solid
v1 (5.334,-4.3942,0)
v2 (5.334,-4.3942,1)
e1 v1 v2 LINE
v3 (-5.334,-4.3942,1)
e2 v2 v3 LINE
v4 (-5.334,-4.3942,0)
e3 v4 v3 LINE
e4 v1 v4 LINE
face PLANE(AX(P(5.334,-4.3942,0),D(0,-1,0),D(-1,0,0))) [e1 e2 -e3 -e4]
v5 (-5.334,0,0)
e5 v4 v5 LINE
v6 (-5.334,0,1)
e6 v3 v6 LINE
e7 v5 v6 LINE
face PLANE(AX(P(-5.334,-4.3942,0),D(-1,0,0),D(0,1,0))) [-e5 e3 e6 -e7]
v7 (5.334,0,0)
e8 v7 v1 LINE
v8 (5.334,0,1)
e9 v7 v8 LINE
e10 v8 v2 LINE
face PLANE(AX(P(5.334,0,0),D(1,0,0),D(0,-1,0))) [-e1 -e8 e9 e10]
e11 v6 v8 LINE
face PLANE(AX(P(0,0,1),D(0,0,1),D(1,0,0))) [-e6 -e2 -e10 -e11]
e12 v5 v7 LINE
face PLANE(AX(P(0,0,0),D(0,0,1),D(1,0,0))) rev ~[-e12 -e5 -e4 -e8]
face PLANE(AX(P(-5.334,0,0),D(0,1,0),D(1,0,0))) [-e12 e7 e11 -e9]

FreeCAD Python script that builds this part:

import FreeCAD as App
import Part
import Sketcher

V = App.Vector
Q = App.Units.Quantity

doc = App.newDocument("Part")
body = doc.addObject("PartDesign::Body", "Body")

sketch1 = body.newObject("Sketcher::SketchObject", "Sketch")
sketch1.AttachmentSupport = (doc.getObject("XY_Plane"), [""])
sketch1.MapMode = "FlatFace"
sketch1.addGeometry([
    Part.LineSegment(V(5.3, 0, 0), V(-5.3, 0, 0)),
    Part.LineSegment(V(-5.3, 0, 0), V(-5.3, -4.4, 0)),
    Part.LineSegment(V(-5.3, -4.4, 0), V(5.3, -4.4, 0)),
    Part.LineSegment(V(5.3, -4.4, 0), V(5.3, 0, 0)),
], False)
sketch1.addConstraint([
    Sketcher.Constraint("Coincident", 0, 2, 1, 1),
    Sketcher.Constraint("Coincident", 1, 2, 2, 1),
    Sketcher.Constraint("Coincident", 2, 2, 3, 1),
    Sketcher.Constraint("Coincident", 3, 2, 0, 1),
    Sketcher.Constraint("Horizontal", 0),
    Sketcher.Constraint("Vertical", 1),
    Sketcher.Constraint("Horizontal", 2),
    Sketcher.Constraint("Vertical", 3),
    Sketcher.Constraint("Symmetric", 0, 2, 3, 2, -1, 1),
    Sketcher.Constraint("DistanceX", 0, 2, 0, 1, Q("0.42 in")),
    Sketcher.Constraint("DistanceY", 1, 2, 1, 1, Q("0.173 in")),
])
pad1 = body.newObject("PartDesign::Pad", "Pad")
pad1.Profile = sketch1
pad1.Length = 1

doc.recompute()
